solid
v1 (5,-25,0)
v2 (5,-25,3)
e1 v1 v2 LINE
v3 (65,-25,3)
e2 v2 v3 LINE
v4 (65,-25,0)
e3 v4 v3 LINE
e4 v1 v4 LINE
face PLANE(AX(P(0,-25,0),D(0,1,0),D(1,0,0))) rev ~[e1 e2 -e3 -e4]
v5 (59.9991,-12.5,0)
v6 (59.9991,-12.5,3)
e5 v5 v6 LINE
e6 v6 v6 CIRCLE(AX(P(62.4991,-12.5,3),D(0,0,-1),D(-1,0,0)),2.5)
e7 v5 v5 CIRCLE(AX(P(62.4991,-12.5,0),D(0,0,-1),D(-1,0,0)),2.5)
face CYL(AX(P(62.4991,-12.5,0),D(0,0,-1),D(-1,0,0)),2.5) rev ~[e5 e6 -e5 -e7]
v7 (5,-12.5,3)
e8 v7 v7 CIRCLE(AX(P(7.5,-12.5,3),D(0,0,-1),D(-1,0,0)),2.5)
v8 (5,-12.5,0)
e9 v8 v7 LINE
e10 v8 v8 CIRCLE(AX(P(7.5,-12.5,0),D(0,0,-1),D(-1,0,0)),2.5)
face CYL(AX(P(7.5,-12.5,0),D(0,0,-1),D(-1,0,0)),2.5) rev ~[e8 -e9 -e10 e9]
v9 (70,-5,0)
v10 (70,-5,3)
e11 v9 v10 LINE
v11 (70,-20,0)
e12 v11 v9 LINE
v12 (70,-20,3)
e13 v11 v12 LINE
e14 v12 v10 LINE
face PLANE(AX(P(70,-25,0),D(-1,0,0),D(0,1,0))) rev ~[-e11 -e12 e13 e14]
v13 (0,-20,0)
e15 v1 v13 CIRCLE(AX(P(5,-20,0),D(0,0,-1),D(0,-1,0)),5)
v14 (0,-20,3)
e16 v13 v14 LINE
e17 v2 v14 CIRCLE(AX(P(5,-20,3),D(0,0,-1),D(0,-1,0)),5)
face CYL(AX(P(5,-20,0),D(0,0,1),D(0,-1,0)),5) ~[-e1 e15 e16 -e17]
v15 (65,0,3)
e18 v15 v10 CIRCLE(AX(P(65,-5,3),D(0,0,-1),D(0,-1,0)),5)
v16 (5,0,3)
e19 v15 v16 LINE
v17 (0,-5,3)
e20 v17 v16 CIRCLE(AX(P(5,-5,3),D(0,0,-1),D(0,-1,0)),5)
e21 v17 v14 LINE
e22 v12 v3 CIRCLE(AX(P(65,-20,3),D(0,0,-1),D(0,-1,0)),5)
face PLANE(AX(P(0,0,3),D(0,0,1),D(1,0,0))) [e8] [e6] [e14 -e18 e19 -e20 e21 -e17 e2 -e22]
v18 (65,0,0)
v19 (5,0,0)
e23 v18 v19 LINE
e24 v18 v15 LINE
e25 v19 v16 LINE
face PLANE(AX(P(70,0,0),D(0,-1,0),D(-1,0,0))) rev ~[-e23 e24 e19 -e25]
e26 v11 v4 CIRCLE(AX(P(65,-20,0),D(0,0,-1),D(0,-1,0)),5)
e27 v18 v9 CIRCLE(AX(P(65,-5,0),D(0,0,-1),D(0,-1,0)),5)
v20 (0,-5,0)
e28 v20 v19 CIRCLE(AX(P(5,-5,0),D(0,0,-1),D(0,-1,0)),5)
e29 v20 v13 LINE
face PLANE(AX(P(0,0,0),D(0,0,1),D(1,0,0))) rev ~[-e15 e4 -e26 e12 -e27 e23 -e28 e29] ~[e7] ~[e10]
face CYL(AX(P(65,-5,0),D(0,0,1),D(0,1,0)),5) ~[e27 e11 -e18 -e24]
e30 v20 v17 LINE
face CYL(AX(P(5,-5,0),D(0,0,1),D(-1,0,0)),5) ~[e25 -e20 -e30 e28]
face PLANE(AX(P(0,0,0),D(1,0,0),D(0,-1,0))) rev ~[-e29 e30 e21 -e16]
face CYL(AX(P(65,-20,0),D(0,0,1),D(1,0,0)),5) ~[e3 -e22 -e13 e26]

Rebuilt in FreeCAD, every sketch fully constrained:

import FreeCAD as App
import Part
import Sketcher


def edges_at(feature, points):
    """Names of the edges that pass closest to the given points."""
    edges = feature.Shape.Edges
    near = lambda p: min(range(len(edges)), key=lambda i: edges[i].distToShape(Part.Vertex(*p))[0])
    return sorted({f"Edge{near(p) + 1}" for p in points})

doc = App.newDocument("Part")
body = doc.addObject("PartDesign::Body", "Body")

sketch1 = body.newObject("Sketcher::SketchObject", "Sketch")
sketch1.AttachmentSupport = (doc.getObject("XY_Plane"), [""])
sketch1.MapMode = "FlatFace"
sketch1.addGeometry(Part.LineSegment(App.Vector(70, 0, 0), App.Vector(0, 0, 0)), False)
sketch1.addGeometry(Part.LineSegment(App.Vector(0, 0, 0), App.Vector(0, -25, 0)), False)
sketch1.addGeometry(Part.LineSegment(App.Vector(0, -25, 0), App.Vector(70, -25, 0)), False)
sketch1.addGeometry(Part.LineSegment(App.Vector(70, -25, 0), App.Vector(70, 0, 0)), False)
sketch1.addConstraint(Sketcher.Constraint("Coincident", 0, 2, 1, 1))
sketch1.addConstraint(Sketcher.Constraint("Coincident", 1, 2, 2, 1))
sketch1.addConstraint(Sketcher.Constraint("Coincident", 2, 2, 3, 1))
sketch1.addConstraint(Sketcher.Constraint("Coincident", 3, 2, 0, 1))
sketch1.addConstraint(Sketcher.Constraint("Horizontal", 0))
sketch1.addConstraint(Sketcher.Constraint("Vertical", 1))
sketch1.addConstraint(Sketcher.Constraint("Horizontal", 2))
sketch1.addConstraint(Sketcher.Constraint("Vertical", 3))
sketch1.addConstraint(Sketcher.Constraint("Coincident", 0, 2, -1, 1))
sketch1.addConstraint(Sketcher.Constraint("DistanceX", 0, 2, 0, 1, 70.0))
sketch1.addConstraint(Sketcher.Constraint("DistanceY", 1, 2, 1, 1, 25.0))
pad1 = body.newObject("PartDesign::Pad", "Pad")
pad1.Profile = sketch1
pad1.Length = 3
doc.recompute()

fillet = body.newObject("PartDesign::Fillet", "Fillet")
fillet.Base = (pad1, edges_at(pad1, [(70, 0, 1.5)]))
fillet.Radius = 5
doc.recompute()

fillet2 = body.newObject("PartDesign::Fillet", "Fillet001")
fillet2.Base = (fillet, edges_at(fillet, [(70, -25, 1.5)]))
fillet2.Radius = 5
doc.recompute()

fillet3 = body.newObject("PartDesign::Fillet", "Fillet002")
fillet3.Base = (fillet2, edges_at(fillet2, [(0, -25, 1.5)]))
fillet3.Radius = 5
doc.recompute()

fillet4 = body.newObject("PartDesign::Fillet", "Fillet003")
fillet4.Base = (fillet3, edges_at(fillet3, [(0, 0, 1.5)]))
fillet4.Radius = 5

sketch2 = body.newObject("Sketcher::SketchObject", "Sketch001")
sketch2.AttachmentSupport = (doc.getObject("XY_Plane"), [""])
sketch2.MapMode = "FlatFace"
sketch2.addGeometry(Part.Circle(App.Vector(62.5, -12.5, 0), App.Vector(0, 0, 1), 2.5), False)
sketch2.addGeometry(Part.Circle(App.Vector(7.5, -12.5, 0), App.Vector(0, 0, 1), 2.5), False)
sketch2.addConstraint(Sketcher.Constraint("Equal", 0, 1))
sketch2.addConstraint(Sketcher.Constraint("Horizontal", 0, 3, 1, 3))
sketch2.addConstraint(Sketcher.Constraint("Diameter", 0, 5.0))
sketch2.addConstraint(Sketcher.Constraint("DistanceY", 0, 3, -1, 1, 12.5))
sketch2.addConstraint(Sketcher.Constraint("DistanceX", -1, 1, 1, 3, 7.5))
sketch2.addConstraint(Sketcher.Constraint("DistanceX", -1, 1, 0, 3, 62.499))
pocket1 = body.newObject("PartDesign::Pocket", "Pocket")
pocket1.Profile = sketch2
pocket1.Type = "ThroughAll"
pocket1.Reversed = True

doc.recompute()
